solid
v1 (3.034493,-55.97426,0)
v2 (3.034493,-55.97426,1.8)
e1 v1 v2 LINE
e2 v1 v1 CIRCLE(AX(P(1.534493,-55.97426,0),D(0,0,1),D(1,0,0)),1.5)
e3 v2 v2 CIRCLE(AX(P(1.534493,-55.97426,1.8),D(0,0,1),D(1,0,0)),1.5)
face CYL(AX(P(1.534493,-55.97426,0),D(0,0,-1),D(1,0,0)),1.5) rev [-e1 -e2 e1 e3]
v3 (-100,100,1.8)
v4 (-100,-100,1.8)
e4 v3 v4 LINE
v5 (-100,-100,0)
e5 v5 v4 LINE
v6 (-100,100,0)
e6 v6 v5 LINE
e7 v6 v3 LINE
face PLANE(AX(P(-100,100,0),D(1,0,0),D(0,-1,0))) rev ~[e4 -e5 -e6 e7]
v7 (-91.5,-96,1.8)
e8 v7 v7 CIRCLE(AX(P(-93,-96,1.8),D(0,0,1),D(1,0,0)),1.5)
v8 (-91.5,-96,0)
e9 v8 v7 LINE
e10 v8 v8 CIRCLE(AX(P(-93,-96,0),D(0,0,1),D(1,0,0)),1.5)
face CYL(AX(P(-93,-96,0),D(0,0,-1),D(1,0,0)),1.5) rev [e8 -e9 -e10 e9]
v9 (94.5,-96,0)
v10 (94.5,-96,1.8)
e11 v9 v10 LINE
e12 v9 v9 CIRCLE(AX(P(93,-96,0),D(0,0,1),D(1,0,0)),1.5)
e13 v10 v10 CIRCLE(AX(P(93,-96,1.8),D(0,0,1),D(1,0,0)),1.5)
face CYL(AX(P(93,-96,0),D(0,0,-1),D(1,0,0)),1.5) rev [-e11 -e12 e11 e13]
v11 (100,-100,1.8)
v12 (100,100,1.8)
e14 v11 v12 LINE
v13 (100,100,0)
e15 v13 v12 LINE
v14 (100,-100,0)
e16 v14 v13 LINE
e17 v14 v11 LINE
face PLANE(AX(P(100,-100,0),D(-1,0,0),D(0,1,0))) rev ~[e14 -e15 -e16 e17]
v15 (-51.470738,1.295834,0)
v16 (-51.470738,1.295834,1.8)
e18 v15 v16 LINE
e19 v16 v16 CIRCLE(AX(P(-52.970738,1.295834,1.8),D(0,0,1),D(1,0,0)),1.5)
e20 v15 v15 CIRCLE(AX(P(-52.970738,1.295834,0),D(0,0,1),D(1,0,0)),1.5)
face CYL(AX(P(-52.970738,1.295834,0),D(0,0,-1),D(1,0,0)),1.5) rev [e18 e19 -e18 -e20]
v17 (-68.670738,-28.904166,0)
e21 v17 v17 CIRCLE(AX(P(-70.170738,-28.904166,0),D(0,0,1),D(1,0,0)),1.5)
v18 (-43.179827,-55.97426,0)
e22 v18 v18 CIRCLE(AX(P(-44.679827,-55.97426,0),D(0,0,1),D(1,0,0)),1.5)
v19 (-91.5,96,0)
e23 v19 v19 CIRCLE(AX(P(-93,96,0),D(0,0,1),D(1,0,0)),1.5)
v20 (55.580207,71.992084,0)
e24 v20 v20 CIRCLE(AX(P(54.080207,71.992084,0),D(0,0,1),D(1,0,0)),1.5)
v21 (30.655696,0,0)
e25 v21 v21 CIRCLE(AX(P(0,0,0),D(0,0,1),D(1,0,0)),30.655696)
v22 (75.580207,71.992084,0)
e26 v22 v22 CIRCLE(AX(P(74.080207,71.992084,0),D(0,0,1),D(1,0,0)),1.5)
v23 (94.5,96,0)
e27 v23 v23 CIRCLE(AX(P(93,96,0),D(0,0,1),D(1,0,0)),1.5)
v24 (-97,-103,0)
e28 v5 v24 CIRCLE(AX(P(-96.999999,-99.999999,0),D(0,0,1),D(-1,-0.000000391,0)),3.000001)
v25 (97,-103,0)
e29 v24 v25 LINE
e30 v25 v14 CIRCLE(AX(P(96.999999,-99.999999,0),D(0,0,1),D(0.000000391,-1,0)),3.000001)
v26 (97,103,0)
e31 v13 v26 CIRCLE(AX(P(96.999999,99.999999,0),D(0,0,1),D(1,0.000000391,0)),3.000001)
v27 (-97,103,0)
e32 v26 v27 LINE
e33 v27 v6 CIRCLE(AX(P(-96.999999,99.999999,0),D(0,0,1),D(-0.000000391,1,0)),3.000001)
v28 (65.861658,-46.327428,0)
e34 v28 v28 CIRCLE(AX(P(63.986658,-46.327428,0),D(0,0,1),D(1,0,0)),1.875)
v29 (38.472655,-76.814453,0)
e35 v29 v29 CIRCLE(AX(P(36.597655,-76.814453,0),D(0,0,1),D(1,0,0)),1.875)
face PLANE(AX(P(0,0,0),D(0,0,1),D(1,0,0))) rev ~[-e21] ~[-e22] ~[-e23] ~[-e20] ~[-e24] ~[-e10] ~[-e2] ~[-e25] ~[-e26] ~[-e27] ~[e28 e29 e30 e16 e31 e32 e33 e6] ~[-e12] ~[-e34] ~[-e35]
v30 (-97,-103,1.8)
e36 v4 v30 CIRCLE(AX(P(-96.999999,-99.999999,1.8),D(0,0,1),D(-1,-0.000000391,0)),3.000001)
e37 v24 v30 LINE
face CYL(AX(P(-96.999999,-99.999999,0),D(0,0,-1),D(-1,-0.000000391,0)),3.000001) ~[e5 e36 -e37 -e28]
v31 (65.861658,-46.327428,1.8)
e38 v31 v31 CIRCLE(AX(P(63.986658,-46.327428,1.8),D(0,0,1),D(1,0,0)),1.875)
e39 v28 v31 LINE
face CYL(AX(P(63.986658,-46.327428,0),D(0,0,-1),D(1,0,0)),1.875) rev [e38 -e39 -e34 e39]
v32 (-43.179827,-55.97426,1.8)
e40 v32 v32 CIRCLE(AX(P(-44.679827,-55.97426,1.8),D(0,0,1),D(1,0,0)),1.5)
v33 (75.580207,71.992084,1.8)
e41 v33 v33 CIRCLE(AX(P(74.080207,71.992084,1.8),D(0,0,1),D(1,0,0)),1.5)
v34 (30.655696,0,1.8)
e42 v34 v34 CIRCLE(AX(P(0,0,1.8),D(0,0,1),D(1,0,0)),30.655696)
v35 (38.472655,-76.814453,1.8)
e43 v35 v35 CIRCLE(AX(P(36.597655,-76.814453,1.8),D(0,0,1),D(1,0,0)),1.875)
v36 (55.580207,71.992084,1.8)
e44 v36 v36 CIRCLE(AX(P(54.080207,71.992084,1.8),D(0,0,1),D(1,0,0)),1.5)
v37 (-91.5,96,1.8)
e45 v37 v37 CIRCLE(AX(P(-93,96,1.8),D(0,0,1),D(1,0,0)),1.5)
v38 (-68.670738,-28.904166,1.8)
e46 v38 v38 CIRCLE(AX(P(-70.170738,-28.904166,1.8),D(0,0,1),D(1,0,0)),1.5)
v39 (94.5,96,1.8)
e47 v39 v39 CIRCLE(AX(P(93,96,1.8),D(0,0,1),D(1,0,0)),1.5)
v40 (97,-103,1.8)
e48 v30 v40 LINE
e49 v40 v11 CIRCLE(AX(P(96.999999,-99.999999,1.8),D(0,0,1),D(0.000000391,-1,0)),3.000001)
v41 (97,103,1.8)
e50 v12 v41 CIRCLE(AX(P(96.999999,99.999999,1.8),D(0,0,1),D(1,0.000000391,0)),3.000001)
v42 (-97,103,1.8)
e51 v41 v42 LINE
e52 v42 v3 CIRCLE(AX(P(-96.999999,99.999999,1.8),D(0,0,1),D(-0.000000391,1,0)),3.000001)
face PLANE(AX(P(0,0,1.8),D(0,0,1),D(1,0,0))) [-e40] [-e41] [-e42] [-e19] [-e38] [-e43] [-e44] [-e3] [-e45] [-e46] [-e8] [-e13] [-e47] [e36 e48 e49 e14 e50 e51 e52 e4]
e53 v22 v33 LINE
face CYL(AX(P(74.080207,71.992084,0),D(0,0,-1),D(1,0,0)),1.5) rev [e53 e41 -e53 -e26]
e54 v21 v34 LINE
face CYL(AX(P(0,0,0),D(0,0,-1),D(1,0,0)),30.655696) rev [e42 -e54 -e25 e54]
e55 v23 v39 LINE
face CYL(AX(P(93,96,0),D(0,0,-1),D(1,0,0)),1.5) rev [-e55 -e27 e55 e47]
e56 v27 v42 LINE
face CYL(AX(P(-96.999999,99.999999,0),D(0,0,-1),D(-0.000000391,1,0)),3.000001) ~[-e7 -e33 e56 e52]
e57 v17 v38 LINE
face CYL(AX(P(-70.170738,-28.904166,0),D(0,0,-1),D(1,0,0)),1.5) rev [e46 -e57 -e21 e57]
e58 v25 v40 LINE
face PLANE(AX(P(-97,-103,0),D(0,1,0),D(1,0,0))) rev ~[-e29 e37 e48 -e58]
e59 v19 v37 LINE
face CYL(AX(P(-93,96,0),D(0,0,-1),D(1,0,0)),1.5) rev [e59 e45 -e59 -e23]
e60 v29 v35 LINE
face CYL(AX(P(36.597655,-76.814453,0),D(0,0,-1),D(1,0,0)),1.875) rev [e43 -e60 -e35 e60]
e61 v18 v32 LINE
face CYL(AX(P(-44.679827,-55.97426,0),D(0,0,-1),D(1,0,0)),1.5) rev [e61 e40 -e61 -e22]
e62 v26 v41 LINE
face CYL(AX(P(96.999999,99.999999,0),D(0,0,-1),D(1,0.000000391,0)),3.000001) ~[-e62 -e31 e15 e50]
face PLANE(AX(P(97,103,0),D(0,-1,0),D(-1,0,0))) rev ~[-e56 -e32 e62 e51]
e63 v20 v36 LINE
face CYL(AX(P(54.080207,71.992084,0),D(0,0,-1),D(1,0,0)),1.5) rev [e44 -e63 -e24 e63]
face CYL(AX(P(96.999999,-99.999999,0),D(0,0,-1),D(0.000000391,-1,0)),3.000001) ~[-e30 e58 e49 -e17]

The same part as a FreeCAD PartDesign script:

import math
import FreeCAD as App
import Part
import Sketcher
from FreeCAD import Vector

doc = App.newDocument("Part")
params = doc.addObject("Spreadsheet::Sheet", "Params")
for row, (alias, value) in enumerate([
    ("sketch1_diameter", "3 mm"),
    ("sketch1_radius", "3.000001 mm"),
    ("sketch1_diameter2", "3.75 mm"),
    ("sketch1_width", "194 mm"),
    ("sketch1_height", "200 mm"),
    ("pad1_length", "1.8 mm"),
], start=1):
    params.set(f"A{row}", alias)
    params.set(f"B{row}", "=" + value)
    params.setAlias(f"B{row}", alias)

body = doc.addObject("PartDesign::Body", "Body")

sketch1 = body.newObject("Sketcher::SketchObject", "Sketch")
sketch1.AttachmentSupport = (doc.getObject("XY_Plane"), [""])
sketch1.MapMode = "FlatFace"
sketch1.addGeometry(Part.LineSegment(Vector(-97, -103, 0), Vector(97, -103, 0)), False)
sketch1.addGeometry(Part.ArcOfCircle(Part.Circle(Vector(97, -100, 0), Vector(0, 0, 1), 3), math.radians(-90), math.radians(0)), False)
sketch1.addGeometry(Part.LineSegment(Vector(100, -100, 0), Vector(100, 100, 0)), False)
sketch1.addGeometry(Part.ArcOfCircle(Part.Circle(Vector(97, 100, 0), Vector(0, 0, 1), 3), math.radians(0), math.radians(90)), False)
sketch1.addGeometry(Part.LineSegment(Vector(97, 103, 0), Vector(-97, 103, 0)), False)
sketch1.addGeometry(Part.ArcOfCircle(Part.Circle(Vector(-97, 100, 0), Vector(0, 0, 1), 3), math.radians(90), math.radians(180)), False)
sketch1.addGeometry(Part.LineSegment(Vector(-100, 100, 0), Vector(-100, -100, 0)), False)
sketch1.addGeometry(Part.ArcOfCircle(Part.Circle(Vector(-97, -100, 0), Vector(0, 0, 1), 3), math.radians(-180), math.radians(-90)), False)
sketch1.addGeometry(Part.Circle(Vector(-93, -96, 0), Vector(0, 0, 1), 1.5), False)
sketch1.addGeometry(Part.Circle(Vector(-44.7, -56, 0), Vector(0, 0, 1), 1.5), False)
sketch1.addGeometry(Part.Circle(Vector(-70.2, -28.9, 0), Vector(0, 0, 1), 1.5), False)
sketch1.addGeometry(Part.Circle(Vector(36.6, -76.8, 0), Vector(0, 0, 1), 1.9), False)
sketch1.addGeometry(Part.Circle(Vector(1.5, -56, 0), Vector(0, 0, 1), 1.5), False)
sketch1.addGeometry(Part.Circle(Vector(93, -96, 0), Vector(0, 0, 1), 1.5), False)
sketch1.addGeometry(Part.Circle(Vector(64, -46.3, 0), Vector(0, 0, 1), 1.9), False)
sketch1.addGeometry(Part.Circle(Vector(-53, 1.3, 0), Vector(0, 0, 1), 1.5), False)
sketch1.addGeometry(Part.Circle(Vector(-93, 96, 0), Vector(0, 0, 1), 1.5), False)
sketch1.addGeometry(Part.Circle(Vector(0, 0, 0), Vector(0, 0, 1), 30.7), False)
sketch1.addGeometry(Part.Circle(Vector(54.1, 72, 0), Vector(0, 0, 1), 1.5), False)
sketch1.addGeometry(Part.Circle(Vector(74.1, 72, 0), Vector(0, 0, 1), 1.5), False)
sketch1.addGeometry(Part.Circle(Vector(93, 96, 0), Vector(0, 0, 1), 1.5), False)
sketch1.addConstraint(Sketcher.Constraint("Tangent", 0, 2, 1, 1))
sketch1.addConstraint(Sketcher.Constraint("Tangent", 1, 2, 2, 1))
sketch1.addConstraint(Sketcher.Constraint("Tangent", 2, 2, 3, 1))
sketch1.addConstraint(Sketcher.Constraint("Tangent", 3, 2, 4, 1))
sketch1.addConstraint(Sketcher.Constraint("Tangent", 4, 2, 5, 1))
sketch1.addConstraint(Sketcher.Constraint("Tangent", 5, 2, 6, 1))
sketch1.addConstraint(Sketcher.Constraint("Tangent", 6, 2, 7, 1))
sketch1.addConstraint(Sketcher.Constraint("Tangent", 7, 2, 0, 1))
sketch1.addConstraint(Sketcher.Constraint("Horizontal", 0))
sketch1.addConstraint(Sketcher.Constraint("Vertical", 2))
sketch1.addConstraint(Sketcher.Constraint("Horizontal", 4))
sketch1.addConstraint(Sketcher.Constraint("Vertical", 6))
sketch1.addConstraint(Sketcher.Constraint("Coincident", 17, 3, -1, 1))
sketch1.addConstraint(Sketcher.Constraint("Equal", 1, 3))
sketch1.addConstraint(Sketcher.Constraint("Equal", 3, 5))
sketch1.addConstraint(Sketcher.Constraint("Equal", 5, 7))
sketch1.addConstraint(Sketcher.Constraint("Equal", 8, 9))
sketch1.addConstraint(Sketcher.Constraint("Equal", 9, 10))
sketch1.addConstraint(Sketcher.Constraint("Equal", 10, 12))
sketch1.addConstraint(Sketcher.Constraint("Equal", 12, 13))
sketch1.addConstraint(Sketcher.Constraint("Equal", 11, 14))
sketch1.addConstraint(Sketcher.Constraint("Equal", 13, 15))
sketch1.addConstraint(Sketcher.Constraint("Equal", 15, 16))
sketch1.addConstraint(Sketcher.Constraint("Equal", 16, 18))
sketch1.addConstraint(Sketcher.Constraint("Equal", 18, 19))
sketch1.addConstraint(Sketcher.Constraint("Equal", 19, 20))
sketch1.addConstraint(Sketcher.Constraint("Symmetric", 1, 3, 5, 3, -1, 1))
sketch1.addConstraint(Sketcher.Constraint("Symmetric", 13, 3, 16, 3, -1, 1))
sketch1.addConstraint(Sketcher.Constraint("Symmetric", 8, 3, 20, 3, -1, 1))
sketch1.addConstraint(Sketcher.Constraint("Symmetric", 8, 3, 13, 3, -2))
sketch1.addConstraint(Sketcher.Constraint("Horizontal", 9, 3, 12, 3))
sketch1.addConstraint(Sketcher.Constraint("Horizontal", 18, 3, 19, 3))
sketch1.addConstraint(Sketcher.Constraint("Diameter", 8, 3.0))
sketch1.addConstraint(Sketcher.Constraint("Radius", 1, 3.000001))
sketch1.addConstraint(Sketcher.Constraint("Diameter", 11, 3.75))
sketch1.addConstraint(Sketcher.Constraint("DistanceX", 0, 1, 0, 2, 194.0))
sketch1.addConstraint(Sketcher.Constraint("DistanceY", 2, 1, 2, 2, 200.0))
sketch1.addConstraint(Sketcher.Constraint("DistanceX", 8, 3, -1, 1, 93.0))
sketch1.addConstraint(Sketcher.Constraint("DistanceY", 8, 3, -1, 1, 96.0))
sketch1.addConstraint(Sketcher.Constraint("DistanceX", 18, 3, 19, 3, 20.0))
sketch1.addConstraint(Sketcher.Constraint("DistanceX", 10, 3, 15, 3, 17.2))
sketch1.addConstraint(Sketcher.Constraint("DistanceY", 10, 3, 15, 3, 30.2))
sketch1.addConstraint(Sketcher.Constraint("Diameter", 17, 61.311392))
sketch1.addConstraint(Sketcher.Constraint("DistanceY", 9, 3, -1, 1, 55.97426))
sketch1.addConstraint(Sketcher.Constraint("DistanceX", 10, 3, -1, 1, 70.170738))
sketch1.addConstraint(Sketcher.Constraint("DistanceX", 7, 3, 9, 3, 52.320172))
sketch1.addConstraint(Sketcher.Constraint("DistanceX", 9, 3, 12, 3, 46.21432))
sketch1.addConstraint(Sketcher.Constraint("DistanceX", 14, 3, 1, 3, 33.013341))
sketch1.addConstraint(Sketcher.Constraint("DistanceY", 1, 3, 14, 3, 53.672571))
sketch1.addConstraint(Sketcher.Constraint("DistanceX", 18, 3, 3, 3, 42.919792))
sketch1.addConstraint(Sketcher.Constraint("DistanceY", 15, 3, 18, 3, 70.69625))
sketch1.addConstraint(Sketcher.Constraint("DistanceY", 10, 3, -1, 1, 28.904166))
sketch1.addConstraint(Sketcher.Constraint("DistanceX", -1, 1, 11, 3, 36.597655))
sketch1.addConstraint(Sketcher.Constraint("DistanceY", 11, 3, -1, 1, 76.814453))
sketch1.setExpression("Constraints[32]", "Params.sketch1_diameter")
sketch1.setExpression("Constraints[33]", "Params.sketch1_radius")
sketch1.setExpression("Constraints[34]", "Params.sketch1_diameter2")
sketch1.setExpression("Constraints[35]", "Params.sketch1_width")
sketch1.setExpression("Constraints[36]", "Params.sketch1_height")
pad1 = body.newObject("PartDesign::Pad", "Pad")
pad1.Profile = sketch1
pad1.setExpression("Length", "Params.pad1_length")

doc.recompute()
